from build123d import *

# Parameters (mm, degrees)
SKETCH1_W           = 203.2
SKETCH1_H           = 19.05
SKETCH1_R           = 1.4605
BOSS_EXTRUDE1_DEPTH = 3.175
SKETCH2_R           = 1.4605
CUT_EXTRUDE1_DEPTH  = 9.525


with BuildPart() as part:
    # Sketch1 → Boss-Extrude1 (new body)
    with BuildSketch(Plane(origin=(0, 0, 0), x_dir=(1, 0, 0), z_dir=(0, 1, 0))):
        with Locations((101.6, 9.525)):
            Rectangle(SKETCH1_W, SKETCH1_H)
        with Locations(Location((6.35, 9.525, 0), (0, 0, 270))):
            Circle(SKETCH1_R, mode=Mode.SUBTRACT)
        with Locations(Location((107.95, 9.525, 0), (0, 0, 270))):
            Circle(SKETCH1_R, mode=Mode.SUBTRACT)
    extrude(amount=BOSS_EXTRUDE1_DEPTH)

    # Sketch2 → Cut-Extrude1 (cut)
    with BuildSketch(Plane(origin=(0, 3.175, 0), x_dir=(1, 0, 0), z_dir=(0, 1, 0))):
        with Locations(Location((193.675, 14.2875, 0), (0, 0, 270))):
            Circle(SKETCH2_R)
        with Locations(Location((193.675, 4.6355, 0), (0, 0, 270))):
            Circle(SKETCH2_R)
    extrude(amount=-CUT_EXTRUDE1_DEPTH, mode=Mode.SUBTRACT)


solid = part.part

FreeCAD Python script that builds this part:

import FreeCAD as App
import Part
import Sketcher
from FreeCAD import Vector
Q = App.Units.Quantity

doc = App.newDocument("Part")
params = doc.addObject("Spreadsheet::Sheet", "Params")
for row, (alias, value) in enumerate([
    ("sketch1_width", "8 in"),
    ("sketch1_diameter", "0.115 in"),
    ("sketch1_height", "0.75 in"),
    ("pad1_length", "0.125 in"),
    ("sketch2_diameter", "0.115 in"),
    ("pocket1_length", "0.375 in"),
], start=1):
    params.set(f"A{row}", alias)
    params.set(f"B{row}", "=" + value)
    params.setAlias(f"B{row}", alias)

body = doc.addObject("PartDesign::Body", "Body")

sketch1 = body.newObject("Sketcher::SketchObject", "Sketch")
sketch1.AttachmentSupport = (doc.getObject("XZ_Plane"), [""])
sketch1.MapMode = "FlatFace"
sketch1.addGeometry([
    Part.LineSegment(Vector(0, -19.1, 0), Vector(0, 0, 0)),
    Part.LineSegment(Vector(0, 0, 0), Vector(203.2, 0, 0)),
    Part.LineSegment(Vector(203.2, 0, 0), Vector(203.2, -19.1, 0)),
    Part.LineSegment(Vector(203.2, -19.1, 0), Vector(0, -19.1, 0)),
    Part.Circle(Vector(6.3, -9.5, 0), Vector(0, 0, 1), 1.5),
    Part.Circle(Vector(108, -9.5, 0), Vector(0, 0, 1), 1.5),
], False)
sketch1.addConstraint([
    Sketcher.Constraint("Coincident", 0, 2, 1, 1),
    Sketcher.Constraint("Coincident", 1, 2, 2, 1),
    Sketcher.Constraint("Coincident", 2, 2, 3, 1),
    Sketcher.Constraint("Coincident", 3, 2, 0, 1),
    Sketcher.Constraint("Vertical", 0),
    Sketcher.Constraint("Horizontal", 1),
    Sketcher.Constraint("Vertical", 2),
    Sketcher.Constraint("Horizontal", 3),
    Sketcher.Constraint("Coincident", 0, 2, -1, 1),
    Sketcher.Constraint("Equal", 4, 5),
    Sketcher.Constraint("Horizontal", 4, 3, 5, 3),
    Sketcher.Constraint("DistanceX", 1, 1, 1, 2, Q("8 in")),
    Sketcher.Constraint("Diameter", 4, Q("0.115 in")),
    Sketcher.Constraint("DistanceX", 4, 3, 5, 3, Q("4 in")),
    Sketcher.Constraint("DistanceY", 0, 1, 0, 2, Q("0.75 in")),
    Sketcher.Constraint("DistanceX", -1, 1, 4, 3, Q("0.25 in")),
    Sketcher.Constraint("DistanceY", 4, 3, -1, 1, Q("0.375 in")),
])
sketch1.setExpression("Constraints[11]", "Params.sketch1_width")
sketch1.setExpression("Constraints[12]", "Params.sketch1_diameter")
sketch1.setExpression("Constraints[14]", "Params.sketch1_height")
pad1 = body.newObject("PartDesign::Pad", "Pad")
pad1.Profile = sketch1
pad1.setExpression("Length", "Params.pad1_length")
pad1.Reversed = True

sketch2 = body.newObject("Sketcher::SketchObject", "Sketch001")
sketch2.AttachmentSupport = (doc.getObject("XZ_Plane"), [""])
sketch2.MapMode = "FlatFace"
sketch2.AttachmentOffset = App.Placement(Vector(0, 0, -0.125 * 25.4), App.Rotation())
sketch2.addGeometry([
    Part.Circle(Vector(193.7, -14.3, 0), Vector(0, 0, 1), 1.5),
    Part.Circle(Vector(193.7, -4.6, 0), Vector(0, 0, 1), 1.5),
], False)
sketch2.addConstraint([
    Sketcher.Constraint("Equal", 0, 1),
    Sketcher.Constraint("Vertical", 0, 3, 1, 3),
    Sketcher.Constraint("Diameter", 0, Q("0.115 in")),
    Sketcher.Constraint("DistanceY", 0, 3, 1, 3, Q("0.38 in")),
    Sketcher.Constraint("DistanceX", -1, 1, 0, 3, Q("7.625 in")),
    Sketcher.Constraint("DistanceY", 0, 3, -1, 1, Q("0.5625 in")),
])
sketch2.setExpression("Constraints[2]", "Params.sketch2_diameter")
pocket1 = body.newObject("PartDesign::Pocket", "Pocket")
pocket1.Profile = sketch2
pocket1.setExpression("Length", "Params.pocket1_length")
pocket1.Reversed = True

doc.recompute()
